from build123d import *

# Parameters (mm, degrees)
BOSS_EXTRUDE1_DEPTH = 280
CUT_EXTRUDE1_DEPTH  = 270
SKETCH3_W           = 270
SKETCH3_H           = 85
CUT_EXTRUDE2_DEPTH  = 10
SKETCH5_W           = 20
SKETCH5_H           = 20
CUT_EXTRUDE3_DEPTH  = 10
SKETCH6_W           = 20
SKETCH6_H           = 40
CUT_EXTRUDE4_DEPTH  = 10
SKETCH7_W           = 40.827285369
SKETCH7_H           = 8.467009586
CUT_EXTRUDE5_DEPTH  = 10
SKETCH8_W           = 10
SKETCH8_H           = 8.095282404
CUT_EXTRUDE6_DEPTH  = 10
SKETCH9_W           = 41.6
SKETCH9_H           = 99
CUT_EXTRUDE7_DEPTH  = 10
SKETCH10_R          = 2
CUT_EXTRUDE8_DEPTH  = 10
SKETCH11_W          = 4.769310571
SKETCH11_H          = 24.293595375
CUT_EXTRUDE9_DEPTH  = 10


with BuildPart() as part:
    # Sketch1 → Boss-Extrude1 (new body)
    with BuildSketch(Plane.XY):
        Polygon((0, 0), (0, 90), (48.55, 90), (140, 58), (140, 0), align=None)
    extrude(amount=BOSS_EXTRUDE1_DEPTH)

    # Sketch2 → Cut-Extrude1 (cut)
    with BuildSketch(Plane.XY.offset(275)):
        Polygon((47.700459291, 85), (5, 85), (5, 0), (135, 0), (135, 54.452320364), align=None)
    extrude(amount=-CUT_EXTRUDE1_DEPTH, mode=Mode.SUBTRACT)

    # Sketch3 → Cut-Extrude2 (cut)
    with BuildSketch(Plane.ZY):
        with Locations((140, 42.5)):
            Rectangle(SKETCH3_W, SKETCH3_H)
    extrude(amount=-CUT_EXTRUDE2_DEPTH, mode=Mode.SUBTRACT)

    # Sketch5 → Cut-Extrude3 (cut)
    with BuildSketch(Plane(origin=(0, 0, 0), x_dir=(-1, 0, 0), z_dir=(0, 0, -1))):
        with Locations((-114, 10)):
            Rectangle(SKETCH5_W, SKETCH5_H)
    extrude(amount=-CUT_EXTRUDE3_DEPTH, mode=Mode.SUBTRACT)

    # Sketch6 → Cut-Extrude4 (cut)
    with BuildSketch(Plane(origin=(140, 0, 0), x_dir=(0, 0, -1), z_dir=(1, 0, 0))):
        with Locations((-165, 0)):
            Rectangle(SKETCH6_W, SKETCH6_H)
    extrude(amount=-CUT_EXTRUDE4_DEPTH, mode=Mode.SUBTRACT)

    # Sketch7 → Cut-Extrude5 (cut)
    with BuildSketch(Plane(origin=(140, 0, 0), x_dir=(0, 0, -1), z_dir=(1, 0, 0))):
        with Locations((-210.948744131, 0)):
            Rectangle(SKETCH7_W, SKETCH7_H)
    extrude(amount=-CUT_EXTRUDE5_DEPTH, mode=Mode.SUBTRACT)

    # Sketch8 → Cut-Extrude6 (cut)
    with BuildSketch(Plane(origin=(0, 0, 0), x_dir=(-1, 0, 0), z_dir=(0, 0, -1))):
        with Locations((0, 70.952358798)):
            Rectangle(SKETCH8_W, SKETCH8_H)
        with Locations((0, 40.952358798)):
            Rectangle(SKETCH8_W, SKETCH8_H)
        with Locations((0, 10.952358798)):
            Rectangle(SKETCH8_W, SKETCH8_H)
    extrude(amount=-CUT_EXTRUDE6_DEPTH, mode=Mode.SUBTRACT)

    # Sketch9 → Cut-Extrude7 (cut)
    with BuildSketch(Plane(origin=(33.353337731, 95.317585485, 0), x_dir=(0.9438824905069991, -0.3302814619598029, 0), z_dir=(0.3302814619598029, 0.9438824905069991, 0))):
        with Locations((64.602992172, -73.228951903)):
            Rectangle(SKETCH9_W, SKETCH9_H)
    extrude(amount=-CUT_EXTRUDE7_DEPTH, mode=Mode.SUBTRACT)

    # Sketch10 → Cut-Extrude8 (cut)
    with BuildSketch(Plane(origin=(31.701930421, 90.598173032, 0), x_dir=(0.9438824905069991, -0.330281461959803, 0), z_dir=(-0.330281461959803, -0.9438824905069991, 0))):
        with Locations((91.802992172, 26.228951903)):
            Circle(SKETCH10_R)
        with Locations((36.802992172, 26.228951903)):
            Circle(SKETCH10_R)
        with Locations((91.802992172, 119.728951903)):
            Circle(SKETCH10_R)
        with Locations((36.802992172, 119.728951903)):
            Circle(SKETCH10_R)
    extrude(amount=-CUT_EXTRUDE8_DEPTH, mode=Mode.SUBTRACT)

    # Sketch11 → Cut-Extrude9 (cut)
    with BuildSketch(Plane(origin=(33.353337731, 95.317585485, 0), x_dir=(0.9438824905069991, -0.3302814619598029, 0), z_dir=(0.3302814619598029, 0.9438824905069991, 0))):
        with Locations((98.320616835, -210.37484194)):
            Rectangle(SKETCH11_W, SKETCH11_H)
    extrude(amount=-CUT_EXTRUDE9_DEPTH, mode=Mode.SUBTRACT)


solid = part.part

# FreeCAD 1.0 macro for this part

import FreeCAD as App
import Part
import Sketcher

V = App.Vector


def add_polygon(sketch, points):
    """Adds a closed chain of lines whose ends are joined by coincident constraints."""
    first, n = sketch.GeometryCount, len(points)
    for a, b in zip(points, points[1:] + points[:1]):
        sketch.addGeometry(Part.LineSegment(App.Vector(*a, 0), App.Vector(*b, 0)), False)
    for i in range(n):
        sketch.addConstraint(Sketcher.Constraint("Coincident", first + i, 2, first + (i + 1) % n, 1))

doc = App.newDocument("Part")
params = doc.addObject("Spreadsheet::Sheet", "Params")
for row, (alias, value) in enumerate([
    ("sketch1_width", "140 mm"),
    ("sketch1_height", "90 mm"),
    ("sketch1_height2", "58 mm"),
    ("sketch1_width2", "48.55 mm"),
    ("pad1_length", "280 mm"),
    ("sketch2_width", "130 mm"),
    ("sketch2_height", "85 mm"),
    ("pocket1_length", "270 mm"),
    ("sketch3_width", "85 mm"),
    ("sketch3_height", "270 mm"),
    ("pocket2_length", "10 mm"),
    ("sketch4_width", "20 mm"),
    ("pocket3_length", "10 mm"),
    ("sketch5_width", "40 mm"),
    ("sketch5_height", "20 mm"),
    ("pocket4_length", "10 mm"),
    ("pocket5_length", "10 mm"),
    ("sketch7_width", "10 mm"),
    ("pocket6_length", "10 mm"),
    ("sketch8_height", "99 mm"),
    ("sketch8_width", "41.6 mm"),
    ("pocket7_length", "10 mm"),
    ("sketch9_diameter", "4 mm"),
    ("pocket8_length", "10 mm"),
    ("pocket9_length", "10 mm"),
], start=1):
    params.set(f"A{row}", alias)
    params.set(f"B{row}", "=" + value)
    params.setAlias(f"B{row}", alias)

body = doc.addObject("PartDesign::Body", "Body")

# Sketch on XY plane
sketch1 = body.newObject("Sketcher::SketchObject", "Sketch")
sketch1.AttachmentSupport = (doc.getObject("XY_Plane"), [""])
sketch1.MapMode = "FlatFace"
add_polygon(sketch1, [(0, 90), (0, 0), (140, 0), (140, 58), (49, 90)])  # lines 0-4
sketch1.addConstraint([
    Sketcher.Constraint("Vertical", 0),
    Sketcher.Constraint("Horizontal", 1),
    Sketcher.Constraint("Vertical", 2),
    Sketcher.Constraint("Horizontal", 4),
    Sketcher.Constraint("Coincident", 0, 2, -1, 1),
    Sketcher.Constraint("DistanceX", 1, 1, 1, 2, 140.0),
    Sketcher.Constraint("DistanceY", 0, 2, 0, 1, 90.0),
    Sketcher.Constraint("DistanceY", 2, 1, 2, 2, 58.0),
    Sketcher.Constraint("DistanceX", 4, 2, 4, 1, 48.55),
])
sketch1.setExpression("Constraints[10]", "Params.sketch1_width")
sketch1.setExpression("Constraints[11]", "Params.sketch1_height")
sketch1.setExpression("Constraints[12]", "Params.sketch1_height2")
sketch1.setExpression("Constraints[13]", "Params.sketch1_width2")
pad1 = body.newObject("PartDesign::Pad", "Pad")
pad1.Profile = sketch1
pad1.setExpression("Length", "Params.pad1_length")

# Sketch on XY plane
sketch2 = body.newObject("Sketcher::SketchObject", "Sketch001")
sketch2.AttachmentSupport = (doc.getObject("XY_Plane"), [""])
sketch2.MapMode = "FlatFace"
sketch2.AttachmentOffset = App.Placement(V(0, 0, 275), App.Rotation())
add_polygon(sketch2, [(48, 85), (5, 85), (5, 0), (135, 0), (135, 54)])  # lines 0-4
sketch2.addConstraint([
    Sketcher.Constraint("Horizontal", 0),
    Sketcher.Constraint("Vertical", 1),
    Sketcher.Constraint("Horizontal", 2),
    Sketcher.Constraint("Vertical", 3),
    Sketcher.Constraint("PointOnObject", 1, 2, -1),
    Sketcher.Constraint("DistanceX", 2, 1, 2, 2, 130.0),
    Sketcher.Constraint("DistanceY", 1, 2, 1, 1, 85.0),
    Sketcher.Constraint("DistanceX", -1, 1, 0, 2, 5.0),
    Sketcher.Constraint("DistanceX", 0, 2, 0, 1, 42.700459),
    Sketcher.Constraint("DistanceY", 3, 1, 3, 2, 54.45232),
])
sketch2.setExpression("Constraints[10]", "Params.sketch2_width")
sketch2.setExpression("Constraints[11]", "Params.sketch2_height")
pocket1 = body.newObject("PartDesign::Pocket", "Pocket")
pocket1.Profile = sketch2
pocket1.setExpression("Length", "Params.pocket1_length")

# Sketch on YZ plane
sketch3 = body.newObject("Sketcher::SketchObject", "Sketch002")
sketch3.AttachmentSupport = (doc.getObject("YZ_Plane"), [""])
sketch3.MapMode = "FlatFace"
add_polygon(sketch3, [(85, 5), (0, 5), (0, 275), (85, 275)])  # lines 0-3
sketch3.addConstraint([
    Sketcher.Constraint("Horizontal", 0),
    Sketcher.Constraint("Vertical", 1),
    Sketcher.Constraint("Horizontal", 2),
    Sketcher.Constraint("Vertical", 3),
    Sketcher.Constraint("PointOnObject", 0, 2, -2),
    Sketcher.Constraint("DistanceX", 0, 2, 0, 1, 85.0),
    Sketcher.Constraint("DistanceY", 1, 1, 1, 2, 270.0),
    Sketcher.Constraint("DistanceY", -1, 1, 0, 2, 5.0),
])
sketch3.setExpression("Constraints[9]", "Params.sketch3_width")
sketch3.setExpression("Constraints[10]", "Params.sketch3_height")
pocket2 = body.newObject("PartDesign::Pocket", "Pocket001")
pocket2.Profile = sketch3
pocket2.setExpression("Length", "Params.pocket2_length")
pocket2.Reversed = True

# Sketch on XY plane
sketch4 = body.newObject("Sketcher::SketchObject", "Sketch003")
sketch4.AttachmentSupport = (doc.getObject("XY_Plane"), [""])
sketch4.MapMode = "FlatFace"
add_polygon(sketch4, [(124, 20), (124, 0), (104, 0), (104, 20)])  # lines 0-3
sketch4.addConstraint([
    Sketcher.Constraint("Vertical", 0),
    Sketcher.Constraint("Horizontal", 1),
    Sketcher.Constraint("Vertical", 2),
    Sketcher.Constraint("Horizontal", 3),
    Sketcher.Constraint("PointOnObject", 0, 2, -1),
    Sketcher.Constraint("Equal", 3, 0),
    Sketcher.Constraint("DistanceX", 1, 2, 1, 1, 20.0),
    Sketcher.Constraint("DistanceX", -1, 1, 0, 2, 124.0),
])
sketch4.setExpression("Constraints[10]", "Params.sketch4_width")
pocket3 = body.newObject("PartDesign::Pocket", "Pocket002")
pocket3.Profile = sketch4
pocket3.setExpression("Length", "Params.pocket3_length")
pocket3.Reversed = True

# Sketch on YZ plane
sketch5 = body.newObject("Sketcher::SketchObject", "Sketch004")
sketch5.AttachmentSupport = (doc.getObject("YZ_Plane"), [""])
sketch5.MapMode = "FlatFace"
sketch5.AttachmentOffset = App.Placement(V(0, 0, 140), App.Rotation())
add_polygon(sketch5, [(20, 175), (-20, 175), (-20, 155), (20, 155)])  # lines 0-3
sketch5.addConstraint([
    Sketcher.Constraint("Horizontal", 0),
    Sketcher.Constraint("Vertical", 1),
    Sketcher.Constraint("Horizontal", 2),
    Sketcher.Constraint("Vertical", 3),
    Sketcher.Constraint("DistanceX", 0, 2, 0, 1, 40.0),
    Sketcher.Constraint("DistanceY", 1, 2, 1, 1, 20.0),
    Sketcher.Constraint("DistanceX", 0, 2, -1, 1, 20.0),
    Sketcher.Constraint("DistanceY", -1, 1, 0, 2, 175.0),
])
sketch5.setExpression("Constraints[8]", "Params.sketch5_width")
sketch5.setExpression("Constraints[9]", "Params.sketch5_height")
pocket4 = body.newObject("PartDesign::Pocket", "Pocket003")
pocket4.Profile = sketch5
pocket4.setExpression("Length", "Params.pocket4_length")

# Sketch on YZ plane
sketch6 = body.newObject("Sketcher::SketchObject", "Sketch005")
sketch6.AttachmentSupport = (doc.getObject("YZ_Plane"), [""])
sketch6.MapMode = "FlatFace"
sketch6.AttachmentOffset = App.Placement(V(0, 0, 140), App.Rotation())
add_polygon(sketch6, [(4, 231), (-4, 231), (-4, 191), (4, 191)])  # lines 0-3
sketch6.addConstraint([
    Sketcher.Constraint("Horizontal", 0),
    Sketcher.Constraint("Vertical", 1),
    Sketcher.Constraint("Horizontal", 2),
    Sketcher.Constraint("Vertical", 3),
    Sketcher.Constraint("DistanceX", 0, 2, 0, 1, 8.46701),
    Sketcher.Constraint("DistanceY", -1, 1, 1, 2, 190.535101),
    Sketcher.Constraint("DistanceY", 1, 2, 1, 1, 40.827285),
    Sketcher.Constraint("DistanceX", 0, 2, -1, 1, 4.233505),
])
pocket5 = body.newObject("PartDesign::Pocket", "Pocket004")
pocket5.Profile = sketch6
pocket5.setExpression("Length", "Params.pocket5_length")

# Sketch on XY plane
sketch7 = body.newObject("Sketcher::SketchObject", "Sketch006")
sketch7.AttachmentSupport = (doc.getObject("XY_Plane"), [""])
sketch7.MapMode = "FlatFace"
add_polygon(sketch7, [(5, 75), (5, 67), (-5, 67), (-5, 75)])  # lines 0-3
add_polygon(sketch7, [(5, 45), (5, 37), (-5, 37), (-5, 45)])  # lines 4-7
add_polygon(sketch7, [(5, 15), (5, 7), (-5, 7), (-5, 15)])  # lines 8-11
sketch7.addConstraint([
    Sketcher.Constraint("Vertical", 0),
    Sketcher.Constraint("Horizontal", 1),
    Sketcher.Constraint("Vertical", 2),
    Sketcher.Constraint("Horizontal", 3),
    Sketcher.Constraint("Vertical", 4),
    Sketcher.Constraint("Horizontal", 5),
    Sketcher.Constraint("Vertical", 6),
    Sketcher.Constraint("Horizontal", 7),
    Sketcher.Constraint("Vertical", 8),
    Sketcher.Constraint("Horizontal", 9),
    Sketcher.Constraint("Vertical", 10),
    Sketcher.Constraint("Horizontal", 11),
    Sketcher.Constraint("Vertical", 3, 2, 4, 2),
    Sketcher.Constraint("Vertical", 2, 2, 5, 2),
    Sketcher.Constraint("Vertical", 7, 2, 8, 2),
    Sketcher.Constraint("Vertical", 6, 2, 9, 2),
    Sketcher.Constraint("Equal", 2, 4),
    Sketcher.Constraint("Equal", 6, 8),
    Sketcher.Constraint("DistanceX", 1, 2, 1, 1, 10.0),
    Sketcher.Constraint("DistanceX", -1, 1, 0, 2, 5.0),
    Sketcher.Constraint("DistanceY", -1, 1, 2, 2, 75.0),
    Sketcher.Constraint("DistanceY", -1, 1, 6, 2, 45.0),
    Sketcher.Constraint("DistanceY", -1, 1, 10, 2, 15.0),
    Sketcher.Constraint("DistanceY", 0, 2, 0, 1, 8.095282),
])
sketch7.setExpression("Constraints[30]", "Params.sketch7_width")
pocket6 = body.newObject("PartDesign::Pocket", "Pocket005")
pocket6.Profile = sketch7
pocket6.setExpression("Length", "Params.pocket6_length")
pocket6.Reversed = True

# Sketch on an angled plane
sketch8 = body.newObject("Sketcher::SketchObject", "Sketch007")
sketch8.Placement = App.Placement(V(33.353338, 95.317585, 0), App.Rotation(V(0.943882491, -0.330281462, 0), V(0, 0, -1.000000001), V(0.330281462, 0.943882491, 0), "ZXY"))
add_polygon(sketch8, [(44, -24), (44, -123), (85, -123), (85, -24)])  # lines 0-3
sketch8.addConstraint([
    Sketcher.Constraint("Vertical", 0),
    Sketcher.Constraint("Horizontal", 1),
    Sketcher.Constraint("Vertical", 2),
    Sketcher.Constraint("Horizontal", 3),
    Sketcher.Constraint("DistanceY", 0, 2, 0, 1, 99.0),
    Sketcher.Constraint("DistanceX", 1, 1, 1, 2, 41.6),
    Sketcher.Constraint("DistanceY", 2, 2, -1, 1, 23.728952),
    Sketcher.Constraint("DistanceX", -1, 1, 0, 2, 43.802992),
])
sketch8.setExpression("Constraints[8]", "Params.sketch8_height")
sketch8.setExpression("Constraints[9]", "Params.sketch8_width")
pocket7 = body.newObject("PartDesign::Pocket", "Pocket006")
pocket7.Profile = sketch8
pocket7.setExpression("Length", "Params.pocket7_length")

# Sketch on an angled plane
sketch9 = body.newObject("Sketcher::SketchObject", "Sketch008")
sketch9.Placement = App.Placement(V(31.70193, 90.598173, 0), App.Rotation(V(0.943882491, -0.330281462, 0), V(0, 0, 1.000000001), V(-0.330281462, -0.943882491, 0), "ZXY"))
sketch9.addGeometry([
    Part.Circle(V(91.8, 26.2, 0), V(0, 0, 1), 2),
    Part.Circle(V(36.8, 26.2, 0), V(0, 0, 1), 2),
    Part.Circle(V(91.8, 119.7, 0), V(0, 0, 1), 2),
    Part.Circle(V(36.8, 119.7, 0), V(0, 0, 1), 2),
], False)
sketch9.addConstraint([
    Sketcher.Constraint("Equal", 0, 1),
    Sketcher.Constraint("Equal", 1, 2),
    Sketcher.Constraint("Equal", 2, 3),
    Sketcher.Constraint("Horizontal", 0, 3, 1, 3),
    Sketcher.Constraint("Horizontal", 2, 3, 3, 3),
    Sketcher.Constraint("Vertical", 0, 3, 2, 3),
    Sketcher.Constraint("Vertical", 1, 3, 3, 3),
    Sketcher.Constraint("Diameter", 0, 4.0),
    Sketcher.Constraint("DistanceX", 1, 3, 0, 3, 55.0),
    Sketcher.Constraint("DistanceY", 0, 3, 2, 3, 93.5),
    Sketcher.Constraint("DistanceY", -1, 1, 0, 3, 26.228952),
    Sketcher.Constraint("DistanceX", -1, 1, 0, 3, 91.802992),
])
sketch9.setExpression("Constraints[7]", "Params.sketch9_diameter")
pocket8 = body.newObject("PartDesign::Pocket", "Pocket007")
pocket8.Profile = sketch9
pocket8.setExpression("Length", "Params.pocket8_length")

# Sketch on an angled plane
sketch10 = body.newObject("Sketcher::SketchObject", "Sketch009")
sketch10.Placement = App.Placement(V(33.353338, 95.317585, 0), App.Rotation(V(0.943882491, -0.330281462, 0), V(0, 0, -1.000000001), V(0.330281462, 0.943882491, 0), "ZXY"))
add_polygon(sketch10, [(95.9, -198.2), (95.9, -222.5), (100.7, -222.5), (100.7, -198.2)])  # lines 0-3
sketch10.addConstraint([
    Sketcher.Constraint("Vertical", 0),
    Sketcher.Constraint("Horizontal", 1),
    Sketcher.Constraint("Vertical", 2),
    Sketcher.Constraint("Horizontal", 3),
    Sketcher.Constraint("DistanceX", 1, 1, 1, 2, 4.769311),
    Sketcher.Constraint("DistanceY", 0, 2, 0, 1, 24.293595),
    Sketcher.Constraint("DistanceX", -1, 1, 0, 2, 95.935962),
    Sketcher.Constraint("DistanceY", 0, 2, -1, 1, 222.52164),
])
pocket9 = body.newObject("PartDesign::Pocket", "Pocket008")
pocket9.Profile = sketch10
pocket9.setExpression("Length", "Params.pocket9_length")

doc.recompute()
